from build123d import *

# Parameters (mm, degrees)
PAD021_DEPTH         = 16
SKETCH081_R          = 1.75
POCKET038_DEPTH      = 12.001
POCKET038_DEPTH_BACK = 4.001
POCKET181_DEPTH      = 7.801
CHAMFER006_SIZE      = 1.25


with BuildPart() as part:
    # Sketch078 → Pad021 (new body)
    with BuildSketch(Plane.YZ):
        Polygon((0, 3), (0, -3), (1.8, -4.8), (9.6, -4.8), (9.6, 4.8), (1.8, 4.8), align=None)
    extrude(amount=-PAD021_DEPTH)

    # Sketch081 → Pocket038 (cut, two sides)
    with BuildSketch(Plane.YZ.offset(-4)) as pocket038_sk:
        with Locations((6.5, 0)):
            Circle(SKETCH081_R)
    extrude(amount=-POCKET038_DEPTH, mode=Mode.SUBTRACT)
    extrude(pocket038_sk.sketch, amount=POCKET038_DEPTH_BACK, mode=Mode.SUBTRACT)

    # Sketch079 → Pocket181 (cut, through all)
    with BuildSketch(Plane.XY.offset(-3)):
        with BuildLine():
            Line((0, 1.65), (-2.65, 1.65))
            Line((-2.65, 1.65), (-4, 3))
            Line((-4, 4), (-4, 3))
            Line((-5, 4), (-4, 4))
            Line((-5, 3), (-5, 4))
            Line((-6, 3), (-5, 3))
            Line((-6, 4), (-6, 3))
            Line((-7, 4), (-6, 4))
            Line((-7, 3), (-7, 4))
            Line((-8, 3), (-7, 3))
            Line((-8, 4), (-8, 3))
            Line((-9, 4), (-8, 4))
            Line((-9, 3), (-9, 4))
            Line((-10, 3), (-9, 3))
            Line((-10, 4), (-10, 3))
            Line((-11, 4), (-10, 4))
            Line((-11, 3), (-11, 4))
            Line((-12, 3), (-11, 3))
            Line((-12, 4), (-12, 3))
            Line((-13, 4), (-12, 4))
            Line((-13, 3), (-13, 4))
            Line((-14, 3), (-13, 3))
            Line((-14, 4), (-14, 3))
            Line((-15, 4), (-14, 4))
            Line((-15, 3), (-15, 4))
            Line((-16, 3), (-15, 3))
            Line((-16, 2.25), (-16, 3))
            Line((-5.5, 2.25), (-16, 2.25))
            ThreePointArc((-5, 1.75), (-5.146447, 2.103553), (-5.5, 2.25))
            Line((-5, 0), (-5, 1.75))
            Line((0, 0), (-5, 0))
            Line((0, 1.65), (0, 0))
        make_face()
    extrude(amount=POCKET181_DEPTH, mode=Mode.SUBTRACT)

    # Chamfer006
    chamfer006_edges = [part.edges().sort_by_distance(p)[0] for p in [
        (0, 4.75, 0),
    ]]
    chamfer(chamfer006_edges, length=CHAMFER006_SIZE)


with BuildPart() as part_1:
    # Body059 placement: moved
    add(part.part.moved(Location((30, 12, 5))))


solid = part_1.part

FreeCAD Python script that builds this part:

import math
import FreeCAD as App
import Part
import Sketcher
from FreeCAD import Vector
Q = App.Units.Quantity


def edges_at(feature, points):
    """Names of the edges that pass closest to the given points."""
    edges = feature.Shape.Edges
    near = lambda p: min(range(len(edges)), key=lambda i: edges[i].distToShape(Part.Vertex(*p))[0])
    return sorted({f"Edge{near(p) + 1}" for p in points})


def add_polygon(sketch, points):
    """Adds a closed chain of lines whose ends are joined by coincident constraints."""
    first, n = sketch.GeometryCount, len(points)
    for a, b in zip(points, points[1:] + points[:1]):
        sketch.addGeometry(Part.LineSegment(App.Vector(*a, 0), App.Vector(*b, 0)), False)
    for i in range(n):
        sketch.addConstraint(Sketcher.Constraint("Coincident", first + i, 2, first + (i + 1) % n, 1))

doc = App.newDocument("Part")
body = doc.addObject("PartDesign::Body", "Body")

# Sketch on YZ plane
sketch1 = doc.addObject("Sketcher::SketchObject", "Sketch")
body.addObject(sketch1)
sketch1.AttachmentSupport = (doc.YZ_Plane, [""])
sketch1.MapMode = "FlatFace"
add_polygon(sketch1, [(0, 3), (0, -3), (1.8, -4.8), (9.6, -4.8), (9.6, 4.8), (1.8, 4.8)])  # lines 0-5
sketch1.addConstraint(Sketcher.Constraint("Vertical", 0))
sketch1.addConstraint(Sketcher.Constraint("Horizontal", 2))
sketch1.addConstraint(Sketcher.Constraint("Vertical", 3))
sketch1.addConstraint(Sketcher.Constraint("Horizontal", 4))
sketch1.addConstraint(Sketcher.Constraint("Symmetric", 0, 2, 5, 2, -1, 1))
sketch1.addConstraint(Sketcher.Constraint("Symmetric", 1, 2, 4, 2, -1))
sketch1.addConstraint(Sketcher.Constraint("Perpendicular", 1, 5))
sketch1.addConstraint(Sketcher.Constraint("DistanceY", 0, 2, 0, 1, 6.0))
sketch1.addConstraint(Sketcher.Constraint("DistanceX", 2, 1, 2, 2, 7.8))
sketch1.addConstraint(Sketcher.Constraint("DistanceY", 3, 1, 3, 2, 9.6))
pad1 = doc.addObject("PartDesign::Pad", "Pad")
body.addObject(pad1)
pad1.Profile = sketch1
pad1.Length = 16
pad1.Reversed = True

# Sketch on YZ plane
sketch2 = doc.addObject("Sketcher::SketchObject", "Sketch001")
body.addObject(sketch2)
sketch2.AttachmentSupport = (doc.YZ_Plane, [""])
sketch2.MapMode = "FlatFace"
sketch2.AttachmentOffset = App.Placement(Vector(0, 0, -4), App.Rotation())
sketch2.addGeometry(Part.Circle(Vector(6.5, 0, 0), Vector(0, 0, 1), 1.8), False)
sketch2.addConstraint(Sketcher.Constraint("PointOnObject", 0, 3, -1))
sketch2.addConstraint(Sketcher.Constraint("Diameter", 0, 3.5))
sketch2.addConstraint(Sketcher.Constraint("DistanceX", -1, 1, 0, 3, 6.5))
pocket1 = doc.addObject("PartDesign::Pocket", "Pocket")
body.addObject(pocket1)
pocket1.Profile = sketch2
pocket1.Type = "ThroughAll"
pocket1.Midplane = True

# Sketch on XY plane
sketch3 = doc.addObject("Sketcher::SketchObject", "Sketch002")
body.addObject(sketch3)
sketch3.AttachmentSupport = (doc.XY_Plane, [""])
sketch3.MapMode = "FlatFace"
sketch3.AttachmentOffset = App.Placement(Vector(0, 0, -3), App.Rotation())
sketch3.addGeometry(Part.LineSegment(Vector(0, 1.6, 0), Vector(-2.6, 1.6, 0)), False)
sketch3.addGeometry(Part.LineSegment(Vector(-2.6, 1.6, 0), Vector(-4, 3, 0)), False)
sketch3.addGeometry(Part.LineSegment(Vector(-4, 3, 0), Vector(-4, 4, 0)), False)
sketch3.addGeometry(Part.LineSegment(Vector(-4, 4, 0), Vector(-5, 4, 0)), False)
sketch3.addGeometry(Part.LineSegment(Vector(-5, 4, 0), Vector(-5, 3, 0)), False)
sketch3.addGeometry(Part.LineSegment(Vector(-5, 3, 0), Vector(-6, 3, 0)), False)
sketch3.addGeometry(Part.LineSegment(Vector(-6, 3, 0), Vector(-6, 4, 0)), False)
sketch3.addGeometry(Part.LineSegment(Vector(-6, 4, 0), Vector(-7, 4, 0)), False)
sketch3.addGeometry(Part.LineSegment(Vector(-7, 4, 0), Vector(-7, 3, 0)), False)
sketch3.addGeometry(Part.LineSegment(Vector(-7, 3, 0), Vector(-8, 3, 0)), False)
sketch3.addGeometry(Part.LineSegment(Vector(-8, 3, 0), Vector(-8, 4, 0)), False)
sketch3.addGeometry(Part.LineSegment(Vector(-8, 4, 0), Vector(-9, 4, 0)), False)
sketch3.addGeometry(Part.LineSegment(Vector(-9, 4, 0), Vector(-9, 3, 0)), False)
sketch3.addGeometry(Part.LineSegment(Vector(-9, 3, 0), Vector(-10, 3, 0)), False)
sketch3.addGeometry(Part.LineSegment(Vector(-10, 3, 0), Vector(-10, 4, 0)), False)
sketch3.addGeometry(Part.LineSegment(Vector(-10, 4, 0), Vector(-11, 4, 0)), False)
sketch3.addGeometry(Part.LineSegment(Vector(-11, 4, 0), Vector(-11, 3, 0)), False)
sketch3.addGeometry(Part.LineSegment(Vector(-11, 3, 0), Vector(-12, 3, 0)), False)
sketch3.addGeometry(Part.LineSegment(Vector(-12, 3, 0), Vector(-12, 4, 0)), False)
sketch3.addGeometry(Part.LineSegment(Vector(-12, 4, 0), Vector(-13, 4, 0)), False)
sketch3.addGeometry(Part.LineSegment(Vector(-13, 4, 0), Vector(-13, 3, 0)), False)
sketch3.addGeometry(Part.LineSegment(Vector(-13, 3, 0), Vector(-14, 3, 0)), False)
sketch3.addGeometry(Part.LineSegment(Vector(-14, 3, 0), Vector(-14, 4, 0)), False)
sketch3.addGeometry(Part.LineSegment(Vector(-14, 4, 0), Vector(-15, 4, 0)), False)
sketch3.addGeometry(Part.LineSegment(Vector(-15, 4, 0), Vector(-15, 3, 0)), False)
sketch3.addGeometry(Part.LineSegment(Vector(-15, 3, 0), Vector(-16, 3, 0)), False)
sketch3.addGeometry(Part.LineSegment(Vector(-16, 3, 0), Vector(-16, 2.2, 0)), False)
sketch3.addGeometry(Part.LineSegment(Vector(-16, 2.2, 0), Vector(-5.5, 2.2, 0)), False)
sketch3.addGeometry(Part.ArcOfCircle(Part.Circle(Vector(-5.5, 1.7, 0), Vector(0, 0, 1), 0.5), math.radians(0), math.radians(90)), False)
sketch3.addGeometry(Part.LineSegment(Vector(-5, 1.8, 0), Vector(-5, 0, 0)), False)
sketch3.addGeometry(Part.LineSegment(Vector(-5, 0, 0), Vector(0, 0, 0)), False)
sketch3.addGeometry(Part.LineSegment(Vector(0, 0, 0), Vector(0, 1.6, 0)), False)
sketch3.addConstraint(Sketcher.Constraint("Coincident", 0, 2, 1, 1))
sketch3.addConstraint(Sketcher.Constraint("Coincident", 1, 2, 2, 1))
sketch3.addConstraint(Sketcher.Constraint("Coincident", 2, 2, 3, 1))
sketch3.addConstraint(Sketcher.Constraint("Coincident", 3, 2, 4, 1))
sketch3.addConstraint(Sketcher.Constraint("Coincident", 4, 2, 5, 1))
sketch3.addConstraint(Sketcher.Constraint("Coincident", 5, 2, 6, 1))
sketch3.addConstraint(Sketcher.Constraint("Coincident", 6, 2, 7, 1))
sketch3.addConstraint(Sketcher.Constraint("Coincident", 7, 2, 8, 1))
sketch3.addConstraint(Sketcher.Constraint("Coincident", 8, 2, 9, 1))
sketch3.addConstraint(Sketcher.Constraint("Coincident", 9, 2, 10, 1))
sketch3.addConstraint(Sketcher.Constraint("Coincident", 10, 2, 11, 1))
sketch3.addConstraint(Sketcher.Constraint("Coincident", 11, 2, 12, 1))
sketch3.addConstraint(Sketcher.Constraint("Coincident", 12, 2, 13, 1))
sketch3.addConstraint(Sketcher.Constraint("Coincident", 13, 2, 14, 1))
sketch3.addConstraint(Sketcher.Constraint("Coincident", 14, 2, 15, 1))
sketch3.addConstraint(Sketcher.Constraint("Coincident", 15, 2, 16, 1))
sketch3.addConstraint(Sketcher.Constraint("Coincident", 16, 2, 17, 1))
sketch3.addConstraint(Sketcher.Constraint("Coincident", 17, 2, 18, 1))
sketch3.addConstraint(Sketcher.Constraint("Coincident", 18, 2, 19, 1))
sketch3.addConstraint(Sketcher.Constraint("Coincident", 19, 2, 20, 1))
sketch3.addConstraint(Sketcher.Constraint("Coincident", 20, 2, 21, 1))
sketch3.addConstraint(Sketcher.Constraint("Coincident", 21, 2, 22, 1))
sketch3.addConstraint(Sketcher.Constraint("Coincident", 22, 2, 23, 1))
sketch3.addConstraint(Sketcher.Constraint("Coincident", 23, 2, 24, 1))
sketch3.addConstraint(Sketcher.Constraint("Coincident", 24, 2, 25, 1))
sketch3.addConstraint(Sketcher.Constraint("Coincident", 25, 2, 26, 1))
sketch3.addConstraint(Sketcher.Constraint("Coincident", 26, 2, 27, 1))
sketch3.addConstraint(Sketcher.Constraint("Coincident", 27, 2, 28, 2))
sketch3.addConstraint(Sketcher.Constraint("Coincident", 28, 1, 29, 1))
sketch3.addConstraint(Sketcher.Constraint("Coincident", 29, 2, 30, 1))
sketch3.addConstraint(Sketcher.Constraint("Coincident", 30, 2, 31, 1))
sketch3.addConstraint(Sketcher.Constraint("Coincident", 31, 2, 0, 1))
sketch3.addConstraint(Sketcher.Constraint("Horizontal", 0))
sketch3.addConstraint(Sketcher.Constraint("Vertical", 2))
sketch3.addConstraint(Sketcher.Constraint("Horizontal", 3))
sketch3.addConstraint(Sketcher.Constraint("Vertical", 4))
sketch3.addConstraint(Sketcher.Constraint("Horizontal", 5))
sketch3.addConstraint(Sketcher.Constraint("Vertical", 6))
sketch3.addConstraint(Sketcher.Constraint("Horizontal", 7))
sketch3.addConstraint(Sketcher.Constraint("Vertical", 8))
sketch3.addConstraint(Sketcher.Constraint("Horizontal", 9))
sketch3.addConstraint(Sketcher.Constraint("Vertical", 10))
sketch3.addConstraint(Sketcher.Constraint("Horizontal", 11))
sketch3.addConstraint(Sketcher.Constraint("Vertical", 12))
sketch3.addConstraint(Sketcher.Constraint("Horizontal", 13))
sketch3.addConstraint(Sketcher.Constraint("Vertical", 14))
sketch3.addConstraint(Sketcher.Constraint("Horizontal", 15))
sketch3.addConstraint(Sketcher.Constraint("Vertical", 16))
sketch3.addConstraint(Sketcher.Constraint("Horizontal", 17))
sketch3.addConstraint(Sketcher.Constraint("Vertical", 18))
sketch3.addConstraint(Sketcher.Constraint("Horizontal", 19))
sketch3.addConstraint(Sketcher.Constraint("Vertical", 20))
sketch3.addConstraint(Sketcher.Constraint("Horizontal", 21))
sketch3.addConstraint(Sketcher.Constraint("Vertical", 22))
sketch3.addConstraint(Sketcher.Constraint("Horizontal", 23))
sketch3.addConstraint(Sketcher.Constraint("Vertical", 24))
sketch3.addConstraint(Sketcher.Constraint("Horizontal", 25))
sketch3.addConstraint(Sketcher.Constraint("Vertical", 26))
sketch3.addConstraint(Sketcher.Constraint("Horizontal", 27))
sketch3.addConstraint(Sketcher.Constraint("Vertical", 29))
sketch3.addConstraint(Sketcher.Constraint("Horizontal", 30))
sketch3.addConstraint(Sketcher.Constraint("Vertical", 31))
sketch3.addConstraint(Sketcher.Constraint("Coincident", 30, 2, -1, 1))
sketch3.addConstraint(Sketcher.Constraint("Horizontal", 1, 2, 4, 2))
sketch3.addConstraint(Sketcher.Constraint("Horizontal", 3, 2, 6, 2))
sketch3.addConstraint(Sketcher.Constraint("Horizontal", 5, 2, 8, 2))
sketch3.addConstraint(Sketcher.Constraint("Horizontal", 7, 2, 10, 2))
sketch3.addConstraint(Sketcher.Constraint("Horizontal", 9, 2, 12, 2))
sketch3.addConstraint(Sketcher.Constraint("Horizontal", 11, 2, 14, 2))
sketch3.addConstraint(Sketcher.Constraint("Horizontal", 13, 2, 16, 2))
sketch3.addConstraint(Sketcher.Constraint("Horizontal", 15, 2, 18, 2))
sketch3.addConstraint(Sketcher.Constraint("Horizontal", 17, 2, 20, 2))
sketch3.addConstraint(Sketcher.Constraint("Horizontal", 19, 2, 22, 2))
sketch3.addConstraint(Sketcher.Constraint("Horizontal", 21, 2, 24, 2))
sketch3.addConstraint(Sketcher.Constraint("Vertical", 28, 3, 27, 2))
sketch3.addConstraint(Sketcher.Constraint("Vertical", 4, 2, 28, 1))
sketch3.addConstraint(Sketcher.Constraint("Equal", 3, 5))
sketch3.addConstraint(Sketcher.Constraint("Equal", 5, 7))
sketch3.addConstraint(Sketcher.Constraint("Equal", 7, 9))
sketch3.addConstraint(Sketcher.Constraint("Equal", 9, 11))
sketch3.addConstraint(Sketcher.Constraint("Equal", 11, 13))
sketch3.addConstraint(Sketcher.Constraint("Equal", 13, 15))
sketch3.addConstraint(Sketcher.Constraint("Equal", 15, 17))
sketch3.addConstraint(Sketcher.Constraint("Equal", 17, 19))
sketch3.addConstraint(Sketcher.Constraint("Equal", 19, 21))
sketch3.addConstraint(Sketcher.Constraint("Equal", 21, 23))
sketch3.addConstraint(Sketcher.Constraint("Equal", 23, 25))
sketch3.addConstraint(Sketcher.Constraint("Equal", 25, 2))
sketch3.addConstraint(Sketcher.Constraint("Radius", 28, 0.500001))
sketch3.addConstraint(Sketcher.Constraint("DistanceX", 3, 2, 3, 1, 1.0))
sketch3.addConstraint(Sketcher.Constraint("DistanceX", 30, 1, 30, 2, 5.0))
sketch3.addConstraint(Sketcher.Constraint("Angle", 1, Q("135 deg")))
sketch3.addConstraint(Sketcher.Constraint("DistanceY", -1, 1, 1, 2, 3.0))
sketch3.addConstraint(Sketcher.Constraint("DistanceX", 0, 2, 0, 1, 2.65))
sketch3.addConstraint(Sketcher.Constraint("DistanceY", 26, 2, 26, 1, 0.75))
sketch3.addConstraint(Sketcher.Constraint("DistanceY", 29, 2, 29, 1, 1.75))
pocket2 = doc.addObject("PartDesign::Pocket", "Pocket001")
body.addObject(pocket2)
pocket2.Profile = sketch3
pocket2.Type = "ThroughAll"
pocket2.Reversed = True
doc.recompute()

chamfer = doc.addObject("PartDesign::Chamfer", "Chamfer")
body.addObject(chamfer)
chamfer.Base = (pocket2, edges_at(pocket2, [(0, 4.75, 0)]))
chamfer.Size = 1.25
body2 = doc.addObject("PartDesign::Body", "Body001")
doc.recompute()

body.Placement = App.Placement(Vector(30, 12, 5), App.Rotation(Vector(0, 0, 1), 0))
boolean = doc.addObject("PartDesign::Boolean", "Boolean")
body2.addObject(boolean)
boolean.Type = "Fuse"
boolean.addObjects([body])

doc.recompute()
